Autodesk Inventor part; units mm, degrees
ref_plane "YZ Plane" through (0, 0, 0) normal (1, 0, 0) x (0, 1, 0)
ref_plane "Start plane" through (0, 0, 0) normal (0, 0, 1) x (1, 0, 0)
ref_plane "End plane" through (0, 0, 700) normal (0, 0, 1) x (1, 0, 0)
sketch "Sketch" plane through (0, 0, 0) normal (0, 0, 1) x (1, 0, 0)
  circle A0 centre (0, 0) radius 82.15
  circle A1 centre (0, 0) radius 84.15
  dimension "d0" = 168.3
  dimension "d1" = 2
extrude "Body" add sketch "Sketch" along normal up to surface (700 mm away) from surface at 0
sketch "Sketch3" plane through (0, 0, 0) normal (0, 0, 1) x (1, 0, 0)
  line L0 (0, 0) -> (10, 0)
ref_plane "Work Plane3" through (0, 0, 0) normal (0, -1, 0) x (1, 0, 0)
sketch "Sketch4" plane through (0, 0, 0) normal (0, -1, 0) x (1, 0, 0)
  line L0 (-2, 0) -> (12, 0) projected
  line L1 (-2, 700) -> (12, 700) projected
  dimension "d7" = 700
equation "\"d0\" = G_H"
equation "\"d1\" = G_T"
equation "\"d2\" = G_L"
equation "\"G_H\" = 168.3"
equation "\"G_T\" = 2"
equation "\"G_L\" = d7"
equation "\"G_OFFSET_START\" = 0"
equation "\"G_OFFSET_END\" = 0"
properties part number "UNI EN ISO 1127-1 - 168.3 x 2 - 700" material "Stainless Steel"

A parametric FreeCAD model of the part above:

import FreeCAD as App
import Part
import Sketcher
Q = App.Units.Quantity

doc = App.newDocument("Part")
params = doc.addObject("Spreadsheet::Sheet", "Params")
for row, (alias, value) in enumerate([
    ("sketch1_diameter", "168.3 mm"),
    ("sketch1_diameter2", "164.3 mm"),
    ("pad1_length", "700 mm"),
], start=1):
    params.set(f"A{row}", alias)
    params.set(f"B{row}", "=" + value)
    params.setAlias(f"B{row}", alias)

body = doc.addObject("PartDesign::Body", "Body")

# Sketch on XY plane
sketch1 = body.newObject("Sketcher::SketchObject", "Sketch")
sketch1.AttachmentSupport = (doc.getObject("XY_Plane"), [""])
sketch1.MapMode = "FlatFace"
sketch1.addGeometry(Part.Circle(App.Vector(0, 0, 0), App.Vector(0, 0, 1), 84), False)
sketch1.addGeometry(Part.Circle(App.Vector(0, 0, 0), App.Vector(0, 0, 1), 82), False)
sketch1.addConstraint(Sketcher.Constraint("Coincident", 0, 3, -1, 1))
sketch1.addConstraint(Sketcher.Constraint("Coincident", 1, 3, -1, 1))
sketch1.addConstraint(Sketcher.Constraint("Diameter", 0, Q("168.3 mm")))
sketch1.addConstraint(Sketcher.Constraint("Diameter", 1, Q("164.3 mm")))
sketch1.setExpression("Constraints[2]", "Params.sketch1_diameter")
sketch1.setExpression("Constraints[3]", "Params.sketch1_diameter2")
pad1 = body.newObject("PartDesign::Pad", "Pad")
pad1.Profile = sketch1
pad1.setExpression("Length", "Params.pad1_length")

doc.recompute()
